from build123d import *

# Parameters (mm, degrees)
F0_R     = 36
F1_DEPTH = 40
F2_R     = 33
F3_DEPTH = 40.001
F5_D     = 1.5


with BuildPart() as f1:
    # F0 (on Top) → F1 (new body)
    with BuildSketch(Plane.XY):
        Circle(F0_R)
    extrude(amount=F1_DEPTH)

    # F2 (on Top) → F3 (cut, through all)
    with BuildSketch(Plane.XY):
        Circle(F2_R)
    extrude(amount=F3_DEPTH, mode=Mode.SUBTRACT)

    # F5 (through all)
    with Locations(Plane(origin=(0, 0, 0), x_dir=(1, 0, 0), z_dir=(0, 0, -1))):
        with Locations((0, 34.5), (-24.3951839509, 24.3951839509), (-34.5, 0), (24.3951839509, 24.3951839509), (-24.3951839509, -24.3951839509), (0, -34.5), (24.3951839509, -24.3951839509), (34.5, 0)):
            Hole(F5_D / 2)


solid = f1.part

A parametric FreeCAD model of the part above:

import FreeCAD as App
import Part
import Sketcher
from FreeCAD import Vector
Q = App.Units.Quantity

doc = App.newDocument("Part")
body = doc.addObject("PartDesign::Body", "Body")

# Sketch on XY plane
sketch1 = body.newObject("Sketcher::SketchObject", "Sketch")
sketch1.AttachmentSupport = (doc.getObject("XY_Plane"), [""])
sketch1.MapMode = "FlatFace"
sketch1.addGeometry(Part.Circle(Vector(0, 0, 0), Vector(0, 0, 1), 36), False)
sketch1.addConstraint([
    Sketcher.Constraint("Coincident", 0, 3, -1, 1),
    Sketcher.Constraint("Diameter", 0, Q("72 mm")),
])
pad1 = body.newObject("PartDesign::Pad", "Pad")
pad1.Profile = sketch1
pad1.Length = 40

# Sketch on XY plane
sketch2 = body.newObject("Sketcher::SketchObject", "Sketch001")
sketch2.AttachmentSupport = (doc.getObject("XY_Plane"), [""])
sketch2.MapMode = "FlatFace"
sketch2.addGeometry(Part.Circle(Vector(0, 0, 0), Vector(0, 0, 1), 33), False)
sketch2.addConstraint([
    Sketcher.Constraint("Coincident", 0, 3, -1, 1),
    Sketcher.Constraint("Diameter", 0, Q("66 mm")),
])
pocket1 = body.newObject("PartDesign::Pocket", "Pocket")
pocket1.Profile = sketch2
pocket1.Type = "ThroughAll"
pocket1.Reversed = True

# Sketch on XY plane
sketch3 = body.newObject("Sketcher::SketchObject", "Sketch002")
sketch3.AttachmentSupport = (doc.getObject("XY_Plane"), [""])
sketch3.MapMode = "FlatFace"
sketch3.addGeometry([
    Part.Circle(Vector(0, -34.5, 0), Vector(0, 0, 1), 0.8),  # 0
    Part.Circle(Vector(-24.4, -24.4, 0), Vector(0, 0, 1), 0.8),  # 1
    Part.Circle(Vector(-34.5, 0, 0), Vector(0, 0, 1), 0.8),  # 2
    Part.Circle(Vector(24.4, -24.4, 0), Vector(0, 0, 1), 0.8),  # 3
    Part.Circle(Vector(-24.4, 24.4, 0), Vector(0, 0, 1), 0.8),  # 4
    Part.Circle(Vector(0, 34.5, 0), Vector(0, 0, 1), 0.8),  # 5
    Part.Circle(Vector(24.4, 24.4, 0), Vector(0, 0, 1), 0.8),  # 6
    Part.Circle(Vector(34.5, 0, 0), Vector(0, 0, 1), 0.8),  # 7
], False)
sketch3.addConstraint([
    Sketcher.Constraint("Equal", 0, 1),
    Sketcher.Constraint("Equal", 1, 2),
    Sketcher.Constraint("Equal", 2, 3),
    Sketcher.Constraint("Equal", 3, 4),
    Sketcher.Constraint("Equal", 4, 5),
    Sketcher.Constraint("Equal", 5, 6),
    Sketcher.Constraint("Equal", 6, 7),
    Sketcher.Constraint("Symmetric", 3, 3, 4, 3, -1, 1),
    Sketcher.Constraint("Symmetric", 0, 3, 5, 3, -1, 1),
    Sketcher.Constraint("Symmetric", 1, 3, 6, 3, -1, 1),
    Sketcher.Constraint("Symmetric", 2, 3, 7, 3, -1, 1),
    Sketcher.Constraint("Symmetric", 1, 3, 3, 3, -2),
    Sketcher.Constraint("PointOnObject", 0, 3, -2),
    Sketcher.Constraint("PointOnObject", 2, 3, -1),
    Sketcher.Constraint("Diameter", 0, Q("1.5 mm")),
    Sketcher.Constraint("DistanceY", 0, 3, 5, 3, Q("69 mm")),
    Sketcher.Constraint("DistanceX", 2, 3, -1, 1, Q("34.5 mm")),
    Sketcher.Constraint("DistanceX", 1, 3, -1, 1, Q("24.395184 mm")),
    Sketcher.Constraint("DistanceY", 1, 3, -1, 1, Q("24.395184 mm")),
])
doc.recompute()
hole = body.newObject("PartDesign::Hole", "Hole")
hole.Profile = sketch3
hole.ThreadType = "None"
hole.Diameter = 1.5
hole.DepthType = "ThroughAll"
hole.Reversed = True

doc.recompute()
